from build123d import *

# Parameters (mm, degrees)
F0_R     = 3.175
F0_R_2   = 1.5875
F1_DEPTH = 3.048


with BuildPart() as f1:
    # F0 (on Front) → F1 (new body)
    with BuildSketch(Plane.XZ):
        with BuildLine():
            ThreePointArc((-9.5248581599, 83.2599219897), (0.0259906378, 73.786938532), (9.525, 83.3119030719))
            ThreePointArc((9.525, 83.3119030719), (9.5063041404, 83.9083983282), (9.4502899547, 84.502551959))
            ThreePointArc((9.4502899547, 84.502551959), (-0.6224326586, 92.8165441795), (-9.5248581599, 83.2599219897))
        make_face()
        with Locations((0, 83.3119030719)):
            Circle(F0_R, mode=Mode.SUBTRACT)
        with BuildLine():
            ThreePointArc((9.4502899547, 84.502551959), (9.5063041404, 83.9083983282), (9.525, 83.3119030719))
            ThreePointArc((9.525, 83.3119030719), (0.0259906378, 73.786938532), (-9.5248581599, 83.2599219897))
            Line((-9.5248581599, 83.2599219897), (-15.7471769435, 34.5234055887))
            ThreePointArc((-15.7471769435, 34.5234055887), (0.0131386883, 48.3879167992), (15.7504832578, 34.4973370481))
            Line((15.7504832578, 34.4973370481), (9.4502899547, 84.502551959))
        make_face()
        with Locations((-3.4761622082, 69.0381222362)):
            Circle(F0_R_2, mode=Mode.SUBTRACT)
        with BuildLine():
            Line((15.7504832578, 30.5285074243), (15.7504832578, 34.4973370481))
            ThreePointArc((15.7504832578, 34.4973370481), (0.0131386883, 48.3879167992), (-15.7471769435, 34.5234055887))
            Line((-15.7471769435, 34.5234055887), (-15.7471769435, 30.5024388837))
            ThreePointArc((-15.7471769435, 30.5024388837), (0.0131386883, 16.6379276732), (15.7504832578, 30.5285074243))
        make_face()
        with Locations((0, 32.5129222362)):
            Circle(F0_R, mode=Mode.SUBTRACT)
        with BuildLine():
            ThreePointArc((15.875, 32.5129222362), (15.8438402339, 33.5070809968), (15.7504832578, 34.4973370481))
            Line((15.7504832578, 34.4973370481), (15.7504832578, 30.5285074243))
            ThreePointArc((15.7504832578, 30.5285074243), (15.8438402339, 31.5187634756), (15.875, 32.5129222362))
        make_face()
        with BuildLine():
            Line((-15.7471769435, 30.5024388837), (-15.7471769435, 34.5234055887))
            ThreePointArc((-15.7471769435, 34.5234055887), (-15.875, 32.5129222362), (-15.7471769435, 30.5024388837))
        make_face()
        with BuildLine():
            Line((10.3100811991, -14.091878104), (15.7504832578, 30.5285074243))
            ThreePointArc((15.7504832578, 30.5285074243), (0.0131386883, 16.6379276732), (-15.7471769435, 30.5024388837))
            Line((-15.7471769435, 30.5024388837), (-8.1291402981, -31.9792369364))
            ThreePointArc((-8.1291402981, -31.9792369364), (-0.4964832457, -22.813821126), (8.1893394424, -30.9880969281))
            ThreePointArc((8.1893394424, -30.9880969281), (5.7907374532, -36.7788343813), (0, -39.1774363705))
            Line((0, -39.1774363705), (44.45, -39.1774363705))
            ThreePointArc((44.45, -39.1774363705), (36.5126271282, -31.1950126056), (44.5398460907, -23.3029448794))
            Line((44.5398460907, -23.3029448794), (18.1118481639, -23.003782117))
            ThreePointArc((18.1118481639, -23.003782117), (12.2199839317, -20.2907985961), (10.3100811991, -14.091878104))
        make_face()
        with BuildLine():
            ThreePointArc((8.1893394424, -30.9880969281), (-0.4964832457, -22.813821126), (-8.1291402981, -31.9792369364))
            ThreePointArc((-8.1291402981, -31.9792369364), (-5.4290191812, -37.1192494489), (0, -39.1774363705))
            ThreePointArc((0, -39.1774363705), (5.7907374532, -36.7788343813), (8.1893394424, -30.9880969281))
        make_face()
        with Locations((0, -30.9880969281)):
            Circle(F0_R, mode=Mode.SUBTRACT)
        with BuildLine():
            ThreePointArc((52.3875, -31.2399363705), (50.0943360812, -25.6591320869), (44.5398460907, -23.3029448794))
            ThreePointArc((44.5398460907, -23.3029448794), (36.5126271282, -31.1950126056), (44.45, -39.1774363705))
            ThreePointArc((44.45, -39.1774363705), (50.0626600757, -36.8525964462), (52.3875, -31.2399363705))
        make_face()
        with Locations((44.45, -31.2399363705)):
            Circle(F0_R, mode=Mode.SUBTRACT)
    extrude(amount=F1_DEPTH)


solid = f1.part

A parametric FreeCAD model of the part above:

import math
import FreeCAD as App
import Part
import Sketcher
Q = App.Units.Quantity

doc = App.newDocument("Part")
body = doc.addObject("PartDesign::Body", "Body")

# Sketch on XZ plane
sketch1 = doc.addObject("Sketcher::SketchObject", "Sketch")
body.addObject(sketch1)
sketch1.AttachmentSupport = (doc.XZ_Plane, [""])
sketch1.MapMode = "FlatFace"
sketch1.addGeometry([
    Part.ArcOfCircle(Part.Circle(App.Vector(0, 83.3, 0), App.Vector(0, 0, 1), 9.5), math.radians(7), math.radians(180)),  # 0
    Part.LineSegment(App.Vector(-9.5, 83.3, 0), App.Vector(-15.7, 34.5, 0)),  # 1
    Part.ArcOfCircle(Part.Circle(App.Vector(0, 32.5, 0), App.Vector(0, 0, 1), 15.9), math.radians(172.72), math.radians(187.28)),  # 2
    Part.LineSegment(App.Vector(-15.7, 30.5, 0), App.Vector(-8.1, -32, 0)),  # 3
    Part.ArcOfCircle(Part.Circle(App.Vector(0, -31, 0), App.Vector(0, 0, 1), 8.2), math.radians(-173), math.radians(-90)),  # 4
    Part.LineSegment(App.Vector(0, -39.2, 0), App.Vector(44.5, -39.2, 0)),  # 5
    Part.ArcOfCircle(Part.Circle(App.Vector(44.5, -31.2, 0), App.Vector(0, 0, 1), 7.9), math.radians(-90), math.radians(0)),  # 6
    Part.ArcOfCircle(Part.Circle(App.Vector(44.5, -31.2, 0), App.Vector(0, 0, 1), 7.9), math.radians(0), math.radians(89)),  # 7
    Part.LineSegment(App.Vector(44.5, -23.3, 0), App.Vector(18.1, -23, 0)),  # 8
    Part.ArcOfCircle(Part.Circle(App.Vector(18.2, -15.1, 0), App.Vector(0, 0, 1), 8), math.radians(173), math.radians(269)),  # 9
    Part.LineSegment(App.Vector(10.3, -14.1, 0), App.Vector(15.8, 30.5, 0)),  # 10
    Part.ArcOfCircle(Part.Circle(App.Vector(0, 32.5, 0), App.Vector(0, 0, 1), 15.9), math.radians(-7.18), math.radians(0)),  # 11
    Part.ArcOfCircle(Part.Circle(App.Vector(0, 32.5, 0), App.Vector(0, 0, 1), 15.9), math.radians(0), math.radians(7.18)),  # 12
    Part.LineSegment(App.Vector(15.8, 34.5, 0), App.Vector(9.5, 84.5, 0)),  # 13
    Part.Circle(App.Vector(0, -31, 0), App.Vector(0, 0, 1), 3.2),  # 14
    Part.Circle(App.Vector(44.5, -31.2, 0), App.Vector(0, 0, 1), 3.2),  # 15
    Part.Circle(App.Vector(0, 32.5, 0), App.Vector(0, 0, 1), 3.2),  # 16
    Part.Circle(App.Vector(-3.5, 69, 0), App.Vector(0, 0, 1), 1.6),  # 17
    Part.Circle(App.Vector(0, 83.3, 0), App.Vector(0, 0, 1), 3.2),  # 18
], False)
sketch1.addConstraint([
    Sketcher.Constraint("Coincident", 0, 2, 1, 1),
    Sketcher.Constraint("Tangent", 1, 2, 2, 1),
    Sketcher.Constraint("Coincident", 2, 2, 3, 1),
    Sketcher.Constraint("Tangent", 3, 2, 4, 1),
    Sketcher.Constraint("Tangent", 4, 2, 5, 1),
    Sketcher.Constraint("Tangent", 5, 2, 6, 1),
    Sketcher.Constraint("Tangent", 6, 2, 7, 1),
    Sketcher.Constraint("Tangent", 7, 2, 8, 1),
    Sketcher.Constraint("Tangent", 8, 2, 9, 2),
    Sketcher.Constraint("Tangent", 9, 1, 10, 1),
    Sketcher.Constraint("Coincident", 10, 2, 11, 1),
    Sketcher.Constraint("Tangent", 11, 2, 12, 1),
    Sketcher.Constraint("Tangent", 12, 2, 13, 1),
    Sketcher.Constraint("Tangent", 13, 2, 0, 1),
    Sketcher.Constraint("Horizontal", 5),
    Sketcher.Constraint("Coincident", 11, 3, 2, 3),
    Sketcher.Constraint("Coincident", 14, 3, 4, 3),
    Sketcher.Constraint("Coincident", 15, 3, 6, 3),
    Sketcher.Constraint("Coincident", 16, 3, 2, 3),
    Sketcher.Constraint("Coincident", 18, 3, 0, 3),
    Sketcher.Constraint("Equal", 6, 7),
    Sketcher.Constraint("Equal", 2, 11),
    Sketcher.Constraint("Equal", 11, 12),
    Sketcher.Constraint("Equal", 14, 15),
    Sketcher.Constraint("Equal", 15, 16),
    Sketcher.Constraint("Equal", 16, 18),
    Sketcher.Constraint("PointOnObject", 0, 3, -2),
    Sketcher.Constraint("PointOnObject", 2, 3, -2),
    Sketcher.Constraint("PointOnObject", 4, 3, -2),
    Sketcher.Constraint("Horizontal", 15, 3, 6, 2),
    Sketcher.Constraint("Horizontal", 16, 3, 11, 2),
    Sketcher.Constraint("Vertical", 1, 2, 2, 2),
    Sketcher.Constraint("Vertical", 10, 2, 12, 2),
    Sketcher.Constraint("Diameter", 14, Q("0.25 in")),
    Sketcher.Constraint("Diameter", 17, Q("0.125 in")),
    Sketcher.Constraint("Radius", 0, Q("0.375 in")),
    Sketcher.Constraint("Radius", 2, Q("0.625 in")),
    Sketcher.Constraint("Radius", 6, Q("0.3125 in")),
    Sketcher.Constraint("Radius", 9, Q("0.313 in")),
    Sketcher.Constraint("DistanceX", 5, 1, 5, 2, Q("1.75 in")),
    Sketcher.Constraint("DistanceY", 4, 3, 0, 3, Q("4.5 in")),
    Sketcher.Constraint("Radius", 4, Q("8.189339 mm")),
    Sketcher.Constraint("DistanceY", 11, 3, 17, 3, Q("1.438 in")),
    Sketcher.Constraint("DistanceY", 17, 3, 0, 2, Q("14.2218 mm")),
    Sketcher.Constraint("DistanceY", 3, 2, 6, 3, Q("0.739301 mm")),
    Sketcher.Constraint("Distance", 8, Q("26.429691 mm")),
    Sketcher.Constraint("DistanceX", -1, 1, 9, 3, Q("18.201838 mm")),
    Sketcher.Constraint("DistanceY", 9, 3, -1, 1, Q("15.054091 mm")),
    Sketcher.Constraint("DistanceX", 17, 3, -1, 1, Q("3.476162 mm")),
])
pad1 = doc.addObject("PartDesign::Pad", "Pad")
body.addObject(pad1)
pad1.Profile = sketch1
pad1.Length = Q("0.12 in")

doc.recompute()
